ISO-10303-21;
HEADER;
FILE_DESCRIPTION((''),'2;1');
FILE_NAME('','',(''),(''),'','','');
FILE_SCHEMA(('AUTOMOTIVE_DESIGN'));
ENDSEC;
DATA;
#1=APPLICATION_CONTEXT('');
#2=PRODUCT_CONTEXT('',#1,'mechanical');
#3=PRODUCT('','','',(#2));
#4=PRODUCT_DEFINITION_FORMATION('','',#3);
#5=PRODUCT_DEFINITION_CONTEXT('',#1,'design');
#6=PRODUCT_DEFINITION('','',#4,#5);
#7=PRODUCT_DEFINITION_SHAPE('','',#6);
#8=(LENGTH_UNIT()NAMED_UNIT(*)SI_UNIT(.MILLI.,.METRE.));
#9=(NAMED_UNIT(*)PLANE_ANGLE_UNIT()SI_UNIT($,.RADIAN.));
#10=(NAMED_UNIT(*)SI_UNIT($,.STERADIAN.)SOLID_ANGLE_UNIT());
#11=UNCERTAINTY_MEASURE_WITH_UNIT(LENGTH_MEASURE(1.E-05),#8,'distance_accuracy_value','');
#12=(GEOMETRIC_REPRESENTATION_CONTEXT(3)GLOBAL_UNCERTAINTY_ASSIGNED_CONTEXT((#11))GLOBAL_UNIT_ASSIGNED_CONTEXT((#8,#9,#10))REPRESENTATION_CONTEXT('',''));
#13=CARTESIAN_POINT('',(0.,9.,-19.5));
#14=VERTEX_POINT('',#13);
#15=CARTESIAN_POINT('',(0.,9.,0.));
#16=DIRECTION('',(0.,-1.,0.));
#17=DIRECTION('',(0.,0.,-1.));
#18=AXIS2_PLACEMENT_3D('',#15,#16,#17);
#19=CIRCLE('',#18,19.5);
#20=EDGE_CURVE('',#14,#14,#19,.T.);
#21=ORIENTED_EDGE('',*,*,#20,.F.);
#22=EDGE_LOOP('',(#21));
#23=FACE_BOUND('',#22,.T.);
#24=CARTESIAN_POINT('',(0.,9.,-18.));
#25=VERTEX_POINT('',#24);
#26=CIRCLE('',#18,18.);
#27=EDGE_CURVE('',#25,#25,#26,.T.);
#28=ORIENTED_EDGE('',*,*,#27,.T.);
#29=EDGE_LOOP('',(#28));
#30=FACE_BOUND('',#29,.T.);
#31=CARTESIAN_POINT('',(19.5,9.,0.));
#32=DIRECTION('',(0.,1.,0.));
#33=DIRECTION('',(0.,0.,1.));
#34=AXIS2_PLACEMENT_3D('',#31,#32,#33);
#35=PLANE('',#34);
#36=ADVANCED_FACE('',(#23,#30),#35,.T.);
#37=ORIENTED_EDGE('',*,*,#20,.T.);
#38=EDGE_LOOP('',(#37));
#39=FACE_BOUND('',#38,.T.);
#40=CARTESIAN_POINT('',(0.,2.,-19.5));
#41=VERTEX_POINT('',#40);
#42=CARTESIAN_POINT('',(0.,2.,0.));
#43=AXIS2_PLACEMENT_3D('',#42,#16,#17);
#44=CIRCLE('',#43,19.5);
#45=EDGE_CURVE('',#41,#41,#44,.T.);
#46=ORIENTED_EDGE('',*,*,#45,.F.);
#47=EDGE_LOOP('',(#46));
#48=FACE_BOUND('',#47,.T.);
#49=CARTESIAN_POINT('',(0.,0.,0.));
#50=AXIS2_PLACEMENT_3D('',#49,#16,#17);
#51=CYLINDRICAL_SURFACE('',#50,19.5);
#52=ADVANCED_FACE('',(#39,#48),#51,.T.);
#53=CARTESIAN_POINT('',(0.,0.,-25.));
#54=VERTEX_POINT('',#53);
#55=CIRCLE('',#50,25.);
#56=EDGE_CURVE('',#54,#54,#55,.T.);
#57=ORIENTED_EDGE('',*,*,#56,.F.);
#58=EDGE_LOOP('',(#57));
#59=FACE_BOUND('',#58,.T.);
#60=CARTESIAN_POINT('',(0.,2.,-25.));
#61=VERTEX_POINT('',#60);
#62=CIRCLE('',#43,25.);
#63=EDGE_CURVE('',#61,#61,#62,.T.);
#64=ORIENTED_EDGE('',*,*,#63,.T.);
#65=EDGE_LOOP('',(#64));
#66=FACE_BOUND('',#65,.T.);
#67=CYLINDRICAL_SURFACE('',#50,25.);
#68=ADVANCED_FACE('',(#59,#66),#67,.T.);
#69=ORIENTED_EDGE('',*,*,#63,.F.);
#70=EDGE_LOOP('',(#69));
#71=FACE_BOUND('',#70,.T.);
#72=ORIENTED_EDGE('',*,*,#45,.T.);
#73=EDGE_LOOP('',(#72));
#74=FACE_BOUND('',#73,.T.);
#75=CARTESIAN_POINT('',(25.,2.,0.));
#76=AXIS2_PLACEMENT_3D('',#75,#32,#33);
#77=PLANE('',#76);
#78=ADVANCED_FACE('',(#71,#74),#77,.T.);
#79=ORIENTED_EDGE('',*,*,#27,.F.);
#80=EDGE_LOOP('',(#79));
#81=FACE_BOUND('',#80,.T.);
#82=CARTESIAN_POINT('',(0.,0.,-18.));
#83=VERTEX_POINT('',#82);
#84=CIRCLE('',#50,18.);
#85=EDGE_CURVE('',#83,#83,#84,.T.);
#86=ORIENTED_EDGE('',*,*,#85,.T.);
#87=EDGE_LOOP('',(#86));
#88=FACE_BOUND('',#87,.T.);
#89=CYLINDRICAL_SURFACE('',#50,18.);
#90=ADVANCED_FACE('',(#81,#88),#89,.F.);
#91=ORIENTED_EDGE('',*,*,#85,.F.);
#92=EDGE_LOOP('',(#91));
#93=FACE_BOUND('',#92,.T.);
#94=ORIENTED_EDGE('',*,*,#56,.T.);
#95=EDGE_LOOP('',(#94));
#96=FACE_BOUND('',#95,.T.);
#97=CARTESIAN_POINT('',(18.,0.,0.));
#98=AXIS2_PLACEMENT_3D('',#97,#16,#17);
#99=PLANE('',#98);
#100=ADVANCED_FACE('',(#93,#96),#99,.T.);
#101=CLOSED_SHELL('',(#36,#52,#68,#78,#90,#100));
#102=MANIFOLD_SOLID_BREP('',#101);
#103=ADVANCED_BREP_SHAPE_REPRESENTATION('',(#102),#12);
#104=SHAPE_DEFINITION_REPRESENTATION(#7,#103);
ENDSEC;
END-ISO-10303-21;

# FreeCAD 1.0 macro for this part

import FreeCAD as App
import Part
import Sketcher

doc = App.newDocument("Part")
params = doc.addObject("Spreadsheet::Sheet", "Params")
for row, (alias, value) in enumerate([
    ("sketch1_width", "7 mm"),
    ("sketch1_height", "2 mm"),
    ("sketch1_width2", "5.5 mm"),
    ("revolution_angle", "360 deg"),
], start=1):
    params.set(f"A{row}", alias)
    params.set(f"B{row}", "=" + value)
    params.setAlias(f"B{row}", alias)

body = doc.addObject("PartDesign::Body", "Body")

# Sketch on XY plane
sketch1 = body.newObject("Sketcher::SketchObject", "Sketch")
sketch1.AttachmentSupport = (doc.getObject("XY_Plane"), [""])
sketch1.MapMode = "FlatFace"
sketch1.addGeometry([
    Part.LineSegment(App.Vector(18, 0, 0), App.Vector(25, 0, 0)),  # 0
    Part.LineSegment(App.Vector(25, 0, 0), App.Vector(25, 2, 0)),  # 1
    Part.LineSegment(App.Vector(25, 2, 0), App.Vector(19.5, 2, 0)),  # 2
    Part.LineSegment(App.Vector(19.5, 2, 0), App.Vector(19.5, 9, 0)),  # 3
    Part.LineSegment(App.Vector(19.5, 9, 0), App.Vector(18, 9, 0)),  # 4
    Part.LineSegment(App.Vector(18, 9, 0), App.Vector(18, 0, 0)),  # 5
], False)
sketch1.addConstraint([
    Sketcher.Constraint("Coincident", 0, 2, 1, 1),
    Sketcher.Constraint("Coincident", 1, 2, 2, 1),
    Sketcher.Constraint("Coincident", 2, 2, 3, 1),
    Sketcher.Constraint("Coincident", 3, 2, 4, 1),
    Sketcher.Constraint("Coincident", 4, 2, 5, 1),
    Sketcher.Constraint("Coincident", 5, 2, 0, 1),
    Sketcher.Constraint("Horizontal", 0),
    Sketcher.Constraint("Vertical", 1),
    Sketcher.Constraint("Horizontal", 2),
    Sketcher.Constraint("Vertical", 3),
    Sketcher.Constraint("Horizontal", 4),
    Sketcher.Constraint("Vertical", 5),
    Sketcher.Constraint("PointOnObject", 0, 2, -1),
    Sketcher.Constraint("Equal", 0, 3),
    Sketcher.Constraint("DistanceX", 0, 1, 0, 2, 7.0),
    Sketcher.Constraint("DistanceY", 1, 1, 1, 2, 2.0),
    Sketcher.Constraint("DistanceX", 2, 2, 2, 1, 5.5),
    Sketcher.Constraint("DistanceX", -1, 1, 0, 2, 25.0),
])
sketch1.setExpression("Constraints[14]", "Params.sketch1_width")
sketch1.setExpression("Constraints[15]", "Params.sketch1_height")
sketch1.setExpression("Constraints[16]", "Params.sketch1_width2")
revolution = body.newObject("PartDesign::Revolution", "Revolution")
revolution.Profile = sketch1
revolution.ReferenceAxis = (sketch1, ["V_Axis"])
revolution.setExpression("Angle", "Params.revolution_angle")

doc.recompute()
